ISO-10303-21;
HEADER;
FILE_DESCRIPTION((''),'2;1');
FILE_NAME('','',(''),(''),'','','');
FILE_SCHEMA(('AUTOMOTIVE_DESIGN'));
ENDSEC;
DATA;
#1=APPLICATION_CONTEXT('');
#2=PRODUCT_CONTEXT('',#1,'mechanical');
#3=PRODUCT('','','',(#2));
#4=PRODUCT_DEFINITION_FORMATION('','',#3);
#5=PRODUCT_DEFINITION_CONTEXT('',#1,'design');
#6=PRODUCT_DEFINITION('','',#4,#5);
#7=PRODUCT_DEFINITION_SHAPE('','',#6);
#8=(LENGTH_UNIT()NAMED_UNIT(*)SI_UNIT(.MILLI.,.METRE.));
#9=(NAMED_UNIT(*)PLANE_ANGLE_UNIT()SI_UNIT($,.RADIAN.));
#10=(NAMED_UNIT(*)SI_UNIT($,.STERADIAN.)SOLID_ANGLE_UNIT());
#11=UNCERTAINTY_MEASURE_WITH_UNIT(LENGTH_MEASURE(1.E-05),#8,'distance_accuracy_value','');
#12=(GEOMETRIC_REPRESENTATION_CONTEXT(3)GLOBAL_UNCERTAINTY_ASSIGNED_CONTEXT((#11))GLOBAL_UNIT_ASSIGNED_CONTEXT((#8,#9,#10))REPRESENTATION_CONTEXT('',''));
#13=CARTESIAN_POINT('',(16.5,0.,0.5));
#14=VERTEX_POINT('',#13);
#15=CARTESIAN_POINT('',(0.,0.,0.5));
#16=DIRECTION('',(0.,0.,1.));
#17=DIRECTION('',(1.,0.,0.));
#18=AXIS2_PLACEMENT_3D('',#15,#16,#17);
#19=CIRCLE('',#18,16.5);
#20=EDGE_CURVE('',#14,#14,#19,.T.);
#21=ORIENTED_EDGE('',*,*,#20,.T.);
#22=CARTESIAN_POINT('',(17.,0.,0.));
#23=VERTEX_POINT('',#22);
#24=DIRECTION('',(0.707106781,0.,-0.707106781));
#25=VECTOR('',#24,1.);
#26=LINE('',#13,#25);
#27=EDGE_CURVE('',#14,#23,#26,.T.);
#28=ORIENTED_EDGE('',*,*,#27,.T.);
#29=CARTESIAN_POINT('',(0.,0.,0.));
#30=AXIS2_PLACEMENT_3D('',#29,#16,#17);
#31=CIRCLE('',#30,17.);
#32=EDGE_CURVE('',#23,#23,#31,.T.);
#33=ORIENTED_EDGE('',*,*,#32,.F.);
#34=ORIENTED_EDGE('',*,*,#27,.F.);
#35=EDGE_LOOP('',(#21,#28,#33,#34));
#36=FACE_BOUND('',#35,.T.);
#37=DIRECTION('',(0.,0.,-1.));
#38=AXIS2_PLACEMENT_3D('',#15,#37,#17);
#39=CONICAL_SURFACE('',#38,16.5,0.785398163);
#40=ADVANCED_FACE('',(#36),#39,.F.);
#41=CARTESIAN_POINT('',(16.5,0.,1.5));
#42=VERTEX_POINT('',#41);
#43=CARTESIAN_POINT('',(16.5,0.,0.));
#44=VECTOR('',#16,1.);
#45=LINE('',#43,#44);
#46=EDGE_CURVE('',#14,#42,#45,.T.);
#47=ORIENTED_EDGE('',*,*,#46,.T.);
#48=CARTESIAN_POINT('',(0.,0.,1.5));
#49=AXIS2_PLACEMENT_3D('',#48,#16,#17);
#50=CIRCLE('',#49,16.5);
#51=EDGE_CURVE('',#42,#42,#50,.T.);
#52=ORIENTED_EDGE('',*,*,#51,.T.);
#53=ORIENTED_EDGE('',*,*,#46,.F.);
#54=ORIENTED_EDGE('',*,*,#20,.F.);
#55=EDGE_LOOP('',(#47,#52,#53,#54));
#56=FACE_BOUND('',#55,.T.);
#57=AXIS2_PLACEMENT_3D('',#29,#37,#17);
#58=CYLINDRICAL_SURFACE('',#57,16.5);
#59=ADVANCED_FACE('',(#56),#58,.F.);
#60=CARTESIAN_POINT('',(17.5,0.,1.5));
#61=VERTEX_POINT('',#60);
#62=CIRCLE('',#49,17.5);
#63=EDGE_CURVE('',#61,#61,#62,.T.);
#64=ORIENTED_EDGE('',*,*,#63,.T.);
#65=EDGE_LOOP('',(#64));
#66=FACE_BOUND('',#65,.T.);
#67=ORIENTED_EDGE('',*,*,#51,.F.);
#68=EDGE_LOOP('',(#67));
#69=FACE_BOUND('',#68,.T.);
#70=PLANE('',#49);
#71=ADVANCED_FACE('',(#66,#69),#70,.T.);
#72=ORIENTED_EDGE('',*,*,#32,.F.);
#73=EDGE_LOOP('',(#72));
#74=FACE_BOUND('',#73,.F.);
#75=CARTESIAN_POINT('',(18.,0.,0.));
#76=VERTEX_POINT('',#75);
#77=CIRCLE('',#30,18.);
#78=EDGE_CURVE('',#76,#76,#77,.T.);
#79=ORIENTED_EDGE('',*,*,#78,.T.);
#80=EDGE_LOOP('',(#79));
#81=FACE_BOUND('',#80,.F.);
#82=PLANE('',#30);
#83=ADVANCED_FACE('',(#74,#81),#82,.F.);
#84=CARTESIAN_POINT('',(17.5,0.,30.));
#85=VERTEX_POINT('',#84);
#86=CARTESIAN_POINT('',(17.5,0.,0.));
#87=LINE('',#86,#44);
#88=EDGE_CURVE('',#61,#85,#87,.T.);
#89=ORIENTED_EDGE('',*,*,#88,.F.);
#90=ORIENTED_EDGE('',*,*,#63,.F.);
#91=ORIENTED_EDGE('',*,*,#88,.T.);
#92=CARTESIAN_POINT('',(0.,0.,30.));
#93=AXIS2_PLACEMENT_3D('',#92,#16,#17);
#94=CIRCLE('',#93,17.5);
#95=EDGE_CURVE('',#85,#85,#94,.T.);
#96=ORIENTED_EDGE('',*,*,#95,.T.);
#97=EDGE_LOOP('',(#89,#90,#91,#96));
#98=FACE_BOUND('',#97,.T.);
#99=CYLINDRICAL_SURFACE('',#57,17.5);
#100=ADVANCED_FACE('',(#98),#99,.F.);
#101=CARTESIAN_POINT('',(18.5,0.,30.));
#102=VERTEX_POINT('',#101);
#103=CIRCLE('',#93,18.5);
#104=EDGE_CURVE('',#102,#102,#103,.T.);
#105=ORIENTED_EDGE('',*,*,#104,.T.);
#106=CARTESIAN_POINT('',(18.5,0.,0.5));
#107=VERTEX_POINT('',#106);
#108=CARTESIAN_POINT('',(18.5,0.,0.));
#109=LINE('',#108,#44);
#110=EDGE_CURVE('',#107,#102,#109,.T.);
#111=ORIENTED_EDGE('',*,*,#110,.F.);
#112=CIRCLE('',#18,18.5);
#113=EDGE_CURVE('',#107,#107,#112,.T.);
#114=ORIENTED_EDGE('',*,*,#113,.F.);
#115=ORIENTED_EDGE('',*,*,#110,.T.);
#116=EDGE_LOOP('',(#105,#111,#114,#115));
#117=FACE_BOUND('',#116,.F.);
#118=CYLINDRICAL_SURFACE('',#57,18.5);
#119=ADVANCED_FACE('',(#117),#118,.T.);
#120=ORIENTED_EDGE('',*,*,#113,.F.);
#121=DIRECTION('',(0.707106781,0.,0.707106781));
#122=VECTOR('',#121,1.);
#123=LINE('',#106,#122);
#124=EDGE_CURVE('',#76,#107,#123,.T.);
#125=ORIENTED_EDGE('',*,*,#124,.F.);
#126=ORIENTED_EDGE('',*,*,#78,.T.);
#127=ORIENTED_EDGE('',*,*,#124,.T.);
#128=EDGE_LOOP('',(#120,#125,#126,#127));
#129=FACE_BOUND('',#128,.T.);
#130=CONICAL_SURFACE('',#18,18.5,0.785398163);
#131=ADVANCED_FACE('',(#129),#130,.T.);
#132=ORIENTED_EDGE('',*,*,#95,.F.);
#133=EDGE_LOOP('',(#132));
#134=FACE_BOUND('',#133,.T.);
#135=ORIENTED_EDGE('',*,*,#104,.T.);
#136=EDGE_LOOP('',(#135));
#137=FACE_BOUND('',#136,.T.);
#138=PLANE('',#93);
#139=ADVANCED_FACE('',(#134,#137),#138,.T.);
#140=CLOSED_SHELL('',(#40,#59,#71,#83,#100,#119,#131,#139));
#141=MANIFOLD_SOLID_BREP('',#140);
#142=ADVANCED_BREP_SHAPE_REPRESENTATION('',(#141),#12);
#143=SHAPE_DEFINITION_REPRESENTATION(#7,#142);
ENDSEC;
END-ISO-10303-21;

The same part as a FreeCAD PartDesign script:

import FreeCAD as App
import Part
import Sketcher
Q = App.Units.Quantity


def edges_at(feature, points):
    """Names of the edges that pass closest to the given points."""
    edges = feature.Shape.Edges
    near = lambda p: min(range(len(edges)), key=lambda i: edges[i].distToShape(Part.Vertex(*p))[0])
    return sorted({f"Edge{near(p) + 1}" for p in points})

doc = App.newDocument("Part")
params = doc.addObject("Spreadsheet::Sheet", "Params")
for row, (alias, value) in enumerate([
    ("sketch1_diameter", "37 mm"),
    ("sketch1_diameter2", "35 mm"),
    ("pad1_length", "30 mm"),
    ("sketch2_diameter", "35 mm"),
    ("sketch2_diameter2", "33 mm"),
    ("pad2_length", "1.5 mm"),
    ("chamfer_size", "0.5 mm"),
], start=1):
    params.set(f"A{row}", alias)
    params.set(f"B{row}", "=" + value)
    params.setAlias(f"B{row}", alias)

body = doc.addObject("PartDesign::Body", "Body")

# Sketch on XY plane
sketch1 = body.newObject("Sketcher::SketchObject", "Sketch")
sketch1.AttachmentSupport = (doc.getObject("XY_Plane"), [""])
sketch1.MapMode = "FlatFace"
sketch1.addGeometry([
    Part.Circle(App.Vector(0, 0, 0), App.Vector(0, 0, 1), 18),
    Part.Circle(App.Vector(0, 0, 0), App.Vector(0, 0, 1), 18),
], False)
sketch1.addConstraint([
    Sketcher.Constraint("Coincident", 0, 3, -1, 1),
    Sketcher.Constraint("Coincident", 1, 3, -1, 1),
    Sketcher.Constraint("Diameter", 0, Q("37 mm")),
    Sketcher.Constraint("Diameter", 1, Q("35 mm")),
])
sketch1.setExpression("Constraints[2]", "Params.sketch1_diameter")
sketch1.setExpression("Constraints[3]", "Params.sketch1_diameter2")
pad1 = body.newObject("PartDesign::Pad", "Pad")
pad1.Profile = sketch1
pad1.setExpression("Length", "Params.pad1_length")

# Sketch on XY plane
sketch2 = body.newObject("Sketcher::SketchObject", "Sketch001")
sketch2.AttachmentSupport = (doc.getObject("XY_Plane"), [""])
sketch2.MapMode = "FlatFace"
sketch2.addGeometry([
    Part.Circle(App.Vector(0, 0, 0), App.Vector(0, 0, 1), 18),
    Part.Circle(App.Vector(0, 0, 0), App.Vector(0, 0, 1), 16),
], False)
sketch2.addConstraint([
    Sketcher.Constraint("Coincident", 0, 3, -1, 1),
    Sketcher.Constraint("Coincident", 1, 3, -1, 1),
    Sketcher.Constraint("Diameter", 0, Q("35 mm")),
    Sketcher.Constraint("Diameter", 1, Q("33 mm")),
])
sketch2.setExpression("Constraints[2]", "Params.sketch2_diameter")
sketch2.setExpression("Constraints[3]", "Params.sketch2_diameter2")
pad2 = body.newObject("PartDesign::Pad", "Pad001")
pad2.Profile = sketch2
pad2.setExpression("Length", "Params.pad2_length")
doc.recompute()

chamfer = body.newObject("PartDesign::Chamfer", "Chamfer")
chamfer.Base = (pad2, edges_at(pad2, [(-18.5, 0, 0), (-16.5, 0, 0)]))
chamfer.setExpression("Size", "Params.chamfer_size")

doc.recompute()
